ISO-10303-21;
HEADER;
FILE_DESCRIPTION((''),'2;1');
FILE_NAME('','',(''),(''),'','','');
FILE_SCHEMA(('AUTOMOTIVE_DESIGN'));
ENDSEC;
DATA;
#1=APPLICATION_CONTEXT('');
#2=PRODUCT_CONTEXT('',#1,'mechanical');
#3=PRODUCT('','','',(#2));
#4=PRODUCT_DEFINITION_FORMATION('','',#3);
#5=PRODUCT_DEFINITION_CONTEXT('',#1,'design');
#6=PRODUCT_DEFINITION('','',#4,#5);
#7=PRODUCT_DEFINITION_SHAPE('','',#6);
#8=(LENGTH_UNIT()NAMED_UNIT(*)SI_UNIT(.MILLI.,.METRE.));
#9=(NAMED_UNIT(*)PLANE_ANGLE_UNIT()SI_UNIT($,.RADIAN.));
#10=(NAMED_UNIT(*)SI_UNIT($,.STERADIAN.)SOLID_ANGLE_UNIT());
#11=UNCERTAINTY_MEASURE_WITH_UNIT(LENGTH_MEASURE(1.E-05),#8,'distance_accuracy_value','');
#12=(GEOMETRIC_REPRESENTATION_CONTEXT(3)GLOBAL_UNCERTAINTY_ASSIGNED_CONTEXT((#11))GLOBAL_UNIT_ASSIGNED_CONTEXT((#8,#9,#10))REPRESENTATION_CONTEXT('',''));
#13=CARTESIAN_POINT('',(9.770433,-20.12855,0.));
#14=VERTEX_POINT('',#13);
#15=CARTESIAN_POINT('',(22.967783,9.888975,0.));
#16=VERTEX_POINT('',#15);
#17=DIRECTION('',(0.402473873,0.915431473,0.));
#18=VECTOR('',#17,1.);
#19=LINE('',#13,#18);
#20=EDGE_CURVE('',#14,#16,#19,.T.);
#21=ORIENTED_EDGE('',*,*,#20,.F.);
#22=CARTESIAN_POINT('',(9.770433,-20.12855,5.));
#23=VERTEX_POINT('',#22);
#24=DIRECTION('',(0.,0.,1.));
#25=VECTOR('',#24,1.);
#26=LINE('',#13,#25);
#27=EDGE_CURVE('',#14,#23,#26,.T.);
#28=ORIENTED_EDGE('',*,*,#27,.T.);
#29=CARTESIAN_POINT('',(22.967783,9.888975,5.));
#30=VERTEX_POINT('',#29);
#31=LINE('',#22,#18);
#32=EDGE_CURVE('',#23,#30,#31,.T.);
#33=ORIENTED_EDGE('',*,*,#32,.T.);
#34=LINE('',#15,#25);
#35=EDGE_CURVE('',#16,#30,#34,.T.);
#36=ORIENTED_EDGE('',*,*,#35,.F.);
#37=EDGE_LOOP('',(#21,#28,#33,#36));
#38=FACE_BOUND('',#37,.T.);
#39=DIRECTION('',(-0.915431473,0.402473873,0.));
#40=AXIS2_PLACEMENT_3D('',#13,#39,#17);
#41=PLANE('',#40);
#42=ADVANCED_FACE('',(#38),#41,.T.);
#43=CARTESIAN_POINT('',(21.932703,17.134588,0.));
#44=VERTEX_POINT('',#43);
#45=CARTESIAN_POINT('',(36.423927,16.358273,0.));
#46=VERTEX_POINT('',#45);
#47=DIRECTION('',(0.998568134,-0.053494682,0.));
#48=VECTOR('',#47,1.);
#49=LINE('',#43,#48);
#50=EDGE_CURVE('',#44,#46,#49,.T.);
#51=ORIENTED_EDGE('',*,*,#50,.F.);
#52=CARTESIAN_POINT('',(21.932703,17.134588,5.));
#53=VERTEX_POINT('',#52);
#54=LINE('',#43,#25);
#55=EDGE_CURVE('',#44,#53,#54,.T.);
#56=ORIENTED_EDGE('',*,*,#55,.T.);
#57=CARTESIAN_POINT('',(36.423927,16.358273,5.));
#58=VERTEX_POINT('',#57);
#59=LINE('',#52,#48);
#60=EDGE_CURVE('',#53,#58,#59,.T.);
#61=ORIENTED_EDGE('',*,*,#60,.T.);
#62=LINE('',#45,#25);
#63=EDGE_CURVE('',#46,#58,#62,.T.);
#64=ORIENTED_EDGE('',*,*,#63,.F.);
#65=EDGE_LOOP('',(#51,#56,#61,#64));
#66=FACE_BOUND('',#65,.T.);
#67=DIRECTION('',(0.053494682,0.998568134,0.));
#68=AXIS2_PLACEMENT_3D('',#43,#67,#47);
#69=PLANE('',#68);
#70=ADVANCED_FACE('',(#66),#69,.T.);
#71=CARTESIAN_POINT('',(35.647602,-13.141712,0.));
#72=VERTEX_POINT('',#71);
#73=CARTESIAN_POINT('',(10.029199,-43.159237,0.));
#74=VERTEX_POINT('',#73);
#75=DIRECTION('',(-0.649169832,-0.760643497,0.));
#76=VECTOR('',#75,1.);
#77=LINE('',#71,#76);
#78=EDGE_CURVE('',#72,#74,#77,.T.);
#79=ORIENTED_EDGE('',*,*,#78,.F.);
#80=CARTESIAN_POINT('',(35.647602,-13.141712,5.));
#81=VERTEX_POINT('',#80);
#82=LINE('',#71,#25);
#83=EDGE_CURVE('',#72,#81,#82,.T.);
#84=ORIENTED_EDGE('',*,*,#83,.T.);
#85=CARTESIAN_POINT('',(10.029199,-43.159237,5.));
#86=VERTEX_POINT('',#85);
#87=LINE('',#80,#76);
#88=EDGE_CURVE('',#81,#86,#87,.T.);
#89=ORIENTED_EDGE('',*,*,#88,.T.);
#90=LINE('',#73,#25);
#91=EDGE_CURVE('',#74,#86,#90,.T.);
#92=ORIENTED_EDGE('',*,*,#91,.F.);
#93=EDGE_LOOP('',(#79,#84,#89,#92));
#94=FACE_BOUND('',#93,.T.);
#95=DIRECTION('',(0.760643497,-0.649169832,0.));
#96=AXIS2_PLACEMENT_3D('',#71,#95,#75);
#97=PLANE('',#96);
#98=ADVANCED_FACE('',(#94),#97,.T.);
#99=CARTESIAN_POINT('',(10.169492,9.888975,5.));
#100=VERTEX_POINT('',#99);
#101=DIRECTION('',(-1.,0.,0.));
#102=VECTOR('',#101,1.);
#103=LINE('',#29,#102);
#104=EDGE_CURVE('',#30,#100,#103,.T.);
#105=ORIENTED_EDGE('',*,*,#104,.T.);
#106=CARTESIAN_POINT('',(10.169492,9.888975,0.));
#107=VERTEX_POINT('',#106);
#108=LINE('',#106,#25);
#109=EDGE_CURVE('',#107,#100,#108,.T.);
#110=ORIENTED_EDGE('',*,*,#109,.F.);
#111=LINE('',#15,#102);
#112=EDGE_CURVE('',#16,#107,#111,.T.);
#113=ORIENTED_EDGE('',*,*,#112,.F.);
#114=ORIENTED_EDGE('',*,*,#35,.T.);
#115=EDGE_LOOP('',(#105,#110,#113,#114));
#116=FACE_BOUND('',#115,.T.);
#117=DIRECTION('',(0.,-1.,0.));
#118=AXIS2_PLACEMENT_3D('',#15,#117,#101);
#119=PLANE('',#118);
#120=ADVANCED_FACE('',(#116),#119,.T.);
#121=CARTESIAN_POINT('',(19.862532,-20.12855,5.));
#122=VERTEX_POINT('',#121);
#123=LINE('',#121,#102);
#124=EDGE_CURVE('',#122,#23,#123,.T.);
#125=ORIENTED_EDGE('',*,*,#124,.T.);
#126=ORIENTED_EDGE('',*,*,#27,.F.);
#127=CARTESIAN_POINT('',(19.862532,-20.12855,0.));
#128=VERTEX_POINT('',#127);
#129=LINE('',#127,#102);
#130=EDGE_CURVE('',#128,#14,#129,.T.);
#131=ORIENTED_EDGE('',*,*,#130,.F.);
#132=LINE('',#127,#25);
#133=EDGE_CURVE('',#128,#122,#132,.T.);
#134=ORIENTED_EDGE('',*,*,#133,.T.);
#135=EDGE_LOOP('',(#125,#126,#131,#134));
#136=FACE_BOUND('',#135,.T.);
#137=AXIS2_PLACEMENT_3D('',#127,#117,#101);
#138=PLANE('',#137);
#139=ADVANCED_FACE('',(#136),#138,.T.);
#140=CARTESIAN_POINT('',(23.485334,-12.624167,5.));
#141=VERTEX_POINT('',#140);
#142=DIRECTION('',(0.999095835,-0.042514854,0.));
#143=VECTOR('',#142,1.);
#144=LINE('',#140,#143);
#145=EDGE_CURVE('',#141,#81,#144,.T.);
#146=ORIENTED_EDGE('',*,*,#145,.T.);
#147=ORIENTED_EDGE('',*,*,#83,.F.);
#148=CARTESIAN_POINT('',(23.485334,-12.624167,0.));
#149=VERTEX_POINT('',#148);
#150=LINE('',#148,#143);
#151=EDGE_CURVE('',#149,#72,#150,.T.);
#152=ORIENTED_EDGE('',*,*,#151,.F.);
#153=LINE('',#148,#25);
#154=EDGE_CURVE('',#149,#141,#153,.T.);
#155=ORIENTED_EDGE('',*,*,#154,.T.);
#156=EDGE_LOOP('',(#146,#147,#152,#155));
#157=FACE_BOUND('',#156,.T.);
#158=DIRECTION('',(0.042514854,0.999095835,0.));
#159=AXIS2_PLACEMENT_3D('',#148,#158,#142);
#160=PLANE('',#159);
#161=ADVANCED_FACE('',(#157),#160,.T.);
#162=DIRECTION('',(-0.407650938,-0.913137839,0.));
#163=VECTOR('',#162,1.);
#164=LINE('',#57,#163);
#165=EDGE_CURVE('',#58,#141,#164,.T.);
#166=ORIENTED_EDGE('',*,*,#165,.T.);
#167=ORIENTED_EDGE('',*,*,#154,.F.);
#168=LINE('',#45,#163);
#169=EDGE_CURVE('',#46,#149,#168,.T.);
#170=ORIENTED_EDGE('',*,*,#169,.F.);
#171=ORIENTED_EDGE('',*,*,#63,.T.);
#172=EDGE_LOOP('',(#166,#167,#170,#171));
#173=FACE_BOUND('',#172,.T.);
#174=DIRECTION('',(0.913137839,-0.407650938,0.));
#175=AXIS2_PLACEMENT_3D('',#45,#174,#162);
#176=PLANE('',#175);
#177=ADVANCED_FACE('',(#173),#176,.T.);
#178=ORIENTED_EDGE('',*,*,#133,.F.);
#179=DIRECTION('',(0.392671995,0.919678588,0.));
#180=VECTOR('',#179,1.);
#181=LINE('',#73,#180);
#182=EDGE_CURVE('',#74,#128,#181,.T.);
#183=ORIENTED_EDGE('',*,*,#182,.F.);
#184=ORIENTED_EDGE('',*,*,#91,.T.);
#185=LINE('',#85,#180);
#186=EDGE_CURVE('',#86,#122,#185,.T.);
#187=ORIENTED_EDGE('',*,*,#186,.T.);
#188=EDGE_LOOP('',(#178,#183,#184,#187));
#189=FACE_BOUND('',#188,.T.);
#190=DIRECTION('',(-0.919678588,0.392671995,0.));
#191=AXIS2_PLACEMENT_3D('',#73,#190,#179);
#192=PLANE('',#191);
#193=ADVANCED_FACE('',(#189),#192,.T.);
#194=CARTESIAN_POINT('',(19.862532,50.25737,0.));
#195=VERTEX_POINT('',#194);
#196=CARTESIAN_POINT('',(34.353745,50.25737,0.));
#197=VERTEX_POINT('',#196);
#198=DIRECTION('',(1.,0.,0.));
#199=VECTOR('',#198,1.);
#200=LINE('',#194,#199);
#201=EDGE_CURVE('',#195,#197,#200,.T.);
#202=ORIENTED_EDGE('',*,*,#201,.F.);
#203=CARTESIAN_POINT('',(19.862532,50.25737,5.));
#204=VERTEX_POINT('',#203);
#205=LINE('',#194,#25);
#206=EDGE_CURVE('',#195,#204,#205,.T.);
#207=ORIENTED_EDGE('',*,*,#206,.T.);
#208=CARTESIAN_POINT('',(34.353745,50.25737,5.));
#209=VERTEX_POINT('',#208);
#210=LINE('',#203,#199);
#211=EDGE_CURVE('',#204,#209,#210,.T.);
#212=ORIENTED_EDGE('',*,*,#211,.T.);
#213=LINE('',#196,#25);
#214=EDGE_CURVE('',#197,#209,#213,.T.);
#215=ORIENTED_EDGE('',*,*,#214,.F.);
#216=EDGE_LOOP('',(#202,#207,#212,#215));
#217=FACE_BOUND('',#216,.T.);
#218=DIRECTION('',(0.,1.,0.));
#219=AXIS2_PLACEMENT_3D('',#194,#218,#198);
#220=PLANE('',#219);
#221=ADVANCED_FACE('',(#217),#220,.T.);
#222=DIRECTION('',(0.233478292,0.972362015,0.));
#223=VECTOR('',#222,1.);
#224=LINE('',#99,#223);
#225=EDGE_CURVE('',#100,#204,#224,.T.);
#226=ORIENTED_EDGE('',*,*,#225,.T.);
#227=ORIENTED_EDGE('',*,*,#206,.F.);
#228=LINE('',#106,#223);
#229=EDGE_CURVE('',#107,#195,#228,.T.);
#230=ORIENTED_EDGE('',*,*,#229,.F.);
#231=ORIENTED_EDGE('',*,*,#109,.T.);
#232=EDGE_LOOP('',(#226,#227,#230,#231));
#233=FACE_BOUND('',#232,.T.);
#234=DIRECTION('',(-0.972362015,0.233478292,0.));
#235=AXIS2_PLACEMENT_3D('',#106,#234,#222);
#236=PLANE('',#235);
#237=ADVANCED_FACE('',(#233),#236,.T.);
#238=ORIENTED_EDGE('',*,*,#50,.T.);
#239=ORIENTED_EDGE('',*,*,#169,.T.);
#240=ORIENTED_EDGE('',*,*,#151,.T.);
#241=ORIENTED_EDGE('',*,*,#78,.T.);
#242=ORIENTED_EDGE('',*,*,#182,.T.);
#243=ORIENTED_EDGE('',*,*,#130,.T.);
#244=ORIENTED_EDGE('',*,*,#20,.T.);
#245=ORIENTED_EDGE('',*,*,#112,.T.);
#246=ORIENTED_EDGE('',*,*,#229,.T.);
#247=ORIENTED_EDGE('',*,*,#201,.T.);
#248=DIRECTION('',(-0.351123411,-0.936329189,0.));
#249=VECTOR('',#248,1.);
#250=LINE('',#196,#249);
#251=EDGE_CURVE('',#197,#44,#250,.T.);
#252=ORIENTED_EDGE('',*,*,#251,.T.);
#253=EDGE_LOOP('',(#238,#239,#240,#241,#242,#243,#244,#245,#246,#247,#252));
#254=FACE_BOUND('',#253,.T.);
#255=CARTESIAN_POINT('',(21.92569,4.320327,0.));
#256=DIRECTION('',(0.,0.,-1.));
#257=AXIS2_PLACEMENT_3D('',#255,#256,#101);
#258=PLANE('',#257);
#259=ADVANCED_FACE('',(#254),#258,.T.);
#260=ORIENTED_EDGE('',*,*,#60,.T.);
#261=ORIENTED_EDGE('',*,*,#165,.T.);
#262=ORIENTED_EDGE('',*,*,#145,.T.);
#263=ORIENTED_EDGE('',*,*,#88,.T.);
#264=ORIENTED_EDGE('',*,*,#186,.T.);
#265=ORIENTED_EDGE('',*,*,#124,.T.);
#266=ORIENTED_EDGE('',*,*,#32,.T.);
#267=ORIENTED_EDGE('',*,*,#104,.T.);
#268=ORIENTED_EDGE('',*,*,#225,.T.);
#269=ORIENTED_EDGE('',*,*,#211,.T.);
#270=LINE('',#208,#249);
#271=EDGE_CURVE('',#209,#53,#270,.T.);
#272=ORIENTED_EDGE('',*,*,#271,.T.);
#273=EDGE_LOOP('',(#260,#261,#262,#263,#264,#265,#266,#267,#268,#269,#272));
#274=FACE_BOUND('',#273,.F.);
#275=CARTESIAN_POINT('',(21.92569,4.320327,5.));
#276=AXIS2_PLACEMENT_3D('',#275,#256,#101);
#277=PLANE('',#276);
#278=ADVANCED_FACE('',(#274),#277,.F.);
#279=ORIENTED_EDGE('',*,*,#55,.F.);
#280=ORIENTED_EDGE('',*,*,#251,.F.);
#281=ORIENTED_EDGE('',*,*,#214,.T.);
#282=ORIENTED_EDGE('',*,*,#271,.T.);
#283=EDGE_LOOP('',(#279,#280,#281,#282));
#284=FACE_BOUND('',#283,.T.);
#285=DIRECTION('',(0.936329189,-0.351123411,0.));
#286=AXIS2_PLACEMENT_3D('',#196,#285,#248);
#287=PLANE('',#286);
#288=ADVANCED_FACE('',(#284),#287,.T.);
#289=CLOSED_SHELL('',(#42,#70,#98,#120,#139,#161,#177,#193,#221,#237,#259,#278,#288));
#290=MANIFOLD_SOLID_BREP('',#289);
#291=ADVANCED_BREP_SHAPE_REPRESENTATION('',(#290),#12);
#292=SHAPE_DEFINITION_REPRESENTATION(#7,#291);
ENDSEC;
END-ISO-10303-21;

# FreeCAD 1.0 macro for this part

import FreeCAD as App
import Part
import Sketcher

doc = App.newDocument("Part")
params = doc.addObject("Spreadsheet::Sheet", "Params")
for row, (alias, value) in enumerate([
    ("pad1_length", "5 mm"),
], start=1):
    params.set(f"A{row}", alias)
    params.set(f"B{row}", "=" + value)
    params.setAlias(f"B{row}", alias)

body = doc.addObject("PartDesign::Body", "Body")

# Sketch on XY plane
sketch1 = body.newObject("Sketcher::SketchObject", "Sketch")
sketch1.AttachmentSupport = (doc.getObject("XY_Plane"), [""])
sketch1.MapMode = "FlatFace"
sketch1.addGeometry([
    Part.LineSegment(App.Vector(20, 50, 0), App.Vector(10, 10, 0)),  # 0
    Part.LineSegment(App.Vector(10, 10, 0), App.Vector(23, 10, 0)),  # 1
    Part.LineSegment(App.Vector(23, 10, 0), App.Vector(10, -20, 0)),  # 2
    Part.LineSegment(App.Vector(10, -20, 0), App.Vector(20, -20, 0)),  # 3
    Part.LineSegment(App.Vector(20, -20, 0), App.Vector(10, -43, 0)),  # 4
    Part.LineSegment(App.Vector(10, -43, 0), App.Vector(36, -13, 0)),  # 5
    Part.LineSegment(App.Vector(36, -13, 0), App.Vector(23, -13, 0)),  # 6
    Part.LineSegment(App.Vector(23, -13, 0), App.Vector(36, 16, 0)),  # 7
    Part.LineSegment(App.Vector(36, 16, 0), App.Vector(22, 17, 0)),  # 8
    Part.LineSegment(App.Vector(22, 17, 0), App.Vector(34, 50, 0)),  # 9
    Part.LineSegment(App.Vector(34, 50, 0), App.Vector(20, 50, 0)),  # 10
], False)
sketch1.addConstraint([
    Sketcher.Constraint("Coincident", 0, 2, 1, 1),
    Sketcher.Constraint("Coincident", 1, 2, 2, 1),
    Sketcher.Constraint("Coincident", 2, 2, 3, 1),
    Sketcher.Constraint("Coincident", 3, 2, 4, 1),
    Sketcher.Constraint("Coincident", 4, 2, 5, 1),
    Sketcher.Constraint("Coincident", 5, 2, 6, 1),
    Sketcher.Constraint("Coincident", 6, 2, 7, 1),
    Sketcher.Constraint("Coincident", 7, 2, 8, 1),
    Sketcher.Constraint("Coincident", 8, 2, 9, 1),
    Sketcher.Constraint("Coincident", 9, 2, 10, 1),
    Sketcher.Constraint("Coincident", 10, 2, 0, 1),
    Sketcher.Constraint("Horizontal", 1),
    Sketcher.Constraint("Horizontal", 3),
    Sketcher.Constraint("Horizontal", 10),
    Sketcher.Constraint("Vertical", 3, 2, 10, 2),
    Sketcher.Constraint("DistanceX", 3, 1, 3, 2, 10.092099),
    Sketcher.Constraint("DistanceX", 1, 1, 1, 2, 12.798291),
    Sketcher.Constraint("DistanceX", -1, 1, 4, 2, 10.029199),
    Sketcher.Constraint("DistanceX", 2, 2, 6, 2, 13.714901),
    Sketcher.Constraint("DistanceY", 1, 2, 7, 2, 6.469298),
    Sketcher.Constraint("DistanceX", 8, 2, 5, 2, 13.714899),
    Sketcher.Constraint("DistanceY", 5, 2, 8, 2, 30.2763),
    Sketcher.Constraint("Distance", 0, 41.515808),
    Sketcher.Constraint("Distance", 5, 39.46333),
    Sketcher.Constraint("DistanceX", 10, 2, 10, 1, 14.491213),
    Sketcher.Constraint("DistanceY", 2, 2, -1, 1, 20.12855),
    Sketcher.Constraint("DistanceY", -1, 1, 8, 2, 17.134588),
    Sketcher.Constraint("DistanceY", -1, 1, 9, 2, 50.25737),
    Sketcher.Constraint("DistanceX", 2, 2, 0, 2, 0.399059),
    Sketcher.Constraint("DistanceX", 3, 2, 5, 2, 15.78507),
    Sketcher.Constraint("DistanceY", 6, 2, 7, 2, 28.98244),
    Sketcher.Constraint("DistanceX", 9, 2, 7, 2, 2.070182),
    Sketcher.Constraint("Distance", 4, 25.042104),
])
pad1 = body.newObject("PartDesign::Pad", "Pad")
pad1.Profile = sketch1
pad1.setExpression("Length", "Params.pad1_length")

doc.recompute()
